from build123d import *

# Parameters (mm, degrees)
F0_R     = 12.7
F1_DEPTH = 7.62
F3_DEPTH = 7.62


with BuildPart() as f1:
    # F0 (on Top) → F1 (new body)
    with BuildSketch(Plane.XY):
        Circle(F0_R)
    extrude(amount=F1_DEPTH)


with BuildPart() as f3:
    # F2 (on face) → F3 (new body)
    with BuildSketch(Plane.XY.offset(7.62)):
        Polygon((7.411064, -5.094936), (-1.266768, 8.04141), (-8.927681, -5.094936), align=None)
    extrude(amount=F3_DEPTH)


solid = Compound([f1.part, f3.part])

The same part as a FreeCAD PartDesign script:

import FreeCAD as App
import Part
import Sketcher

V = App.Vector
Q = App.Units.Quantity

doc = App.newDocument("Part")
body = doc.addObject("PartDesign::Body", "Body")

# Sketch on XY plane
sketch1 = doc.addObject("Sketcher::SketchObject", "Sketch")
body.addObject(sketch1)
sketch1.AttachmentSupport = (doc.XY_Plane, [""])
sketch1.MapMode = "FlatFace"
sketch1.addGeometry(Part.Circle(V(0, 0, 0), V(0, 0, 1), 12.7), False)
sketch1.addConstraint([
    Sketcher.Constraint("Coincident", 0, 3, -1, 1),
    Sketcher.Constraint("Diameter", 0, Q("1 in")),
])
pad1 = doc.addObject("PartDesign::Pad", "Pad")
body.addObject(pad1)
pad1.Profile = sketch1
pad1.Length = Q("0.3 in")
body2 = doc.addObject("PartDesign::Body", "Body001")

# Sketch on XY plane
sketch2 = doc.addObject("Sketcher::SketchObject", "Sketch001")
body2.addObject(sketch2)
sketch2.AttachmentSupport = (doc.getObject("XY_Plane001"), [""])
sketch2.MapMode = "FlatFace"
sketch2.AttachmentOffset = App.Placement(V(0, 0, 0.3 * 25.4), App.Rotation())
sketch2.addGeometry([
    Part.LineSegment(V(7.411064, -5.094936, 0), V(-1.266768, 8.04141, 0)),
    Part.LineSegment(V(-1.266768, 8.04141, 0), V(-8.927681, -5.094936, 0)),
    Part.LineSegment(V(-8.927681, -5.094936, 0), V(7.411064, -5.094936, 0)),
], False)
sketch2.addConstraint([
    Sketcher.Constraint("Coincident", 0, 2, 1, 1),
    Sketcher.Constraint("Coincident", 1, 2, 2, 1),
    Sketcher.Constraint("Coincident", 2, 2, 0, 1),
    Sketcher.Constraint("Horizontal", 2),
    Sketcher.Constraint("Distance", 1, 15.207011),
    Sketcher.Constraint("DistanceX", 2, 1, 2, 2, 16.338745),
    Sketcher.Constraint("DistanceY", -1, 1, 0, 2, 8.04141),
    Sketcher.Constraint("DistanceX", 1, 2, -1, 1, 8.927681),
    Sketcher.Constraint("DistanceX", 0, 2, 2, 2, 8.677832),
])
pad2 = doc.addObject("PartDesign::Pad", "Pad001")
body2.addObject(pad2)
pad2.Profile = sketch2
pad2.Length = Q("0.3 in")

doc.recompute()
